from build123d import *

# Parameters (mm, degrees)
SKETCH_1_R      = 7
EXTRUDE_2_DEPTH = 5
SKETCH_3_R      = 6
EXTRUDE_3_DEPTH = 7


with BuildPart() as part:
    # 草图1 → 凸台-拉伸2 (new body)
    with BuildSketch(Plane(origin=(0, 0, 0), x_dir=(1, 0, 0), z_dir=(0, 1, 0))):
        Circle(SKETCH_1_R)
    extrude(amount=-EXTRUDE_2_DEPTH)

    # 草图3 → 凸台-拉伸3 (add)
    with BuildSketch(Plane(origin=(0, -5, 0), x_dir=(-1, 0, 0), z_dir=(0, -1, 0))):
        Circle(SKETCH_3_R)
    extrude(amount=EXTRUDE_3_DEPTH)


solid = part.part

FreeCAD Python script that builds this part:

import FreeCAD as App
import Part
import Sketcher

V = App.Vector
Q = App.Units.Quantity

doc = App.newDocument("Part")
params = doc.addObject("Spreadsheet::Sheet", "Params")
for row, (alias, value) in enumerate([
    ("sketch1_diameter", "14 mm"),
    ("pad1_length", "5 mm"),
    ("sketch2_diameter", "12 mm"),
    ("pad2_length", "7 mm"),
], start=1):
    params.set(f"A{row}", alias)
    params.set(f"B{row}", "=" + value)
    params.setAlias(f"B{row}", alias)

body = doc.addObject("PartDesign::Body", "Body")

# Sketch on XZ plane
sketch1 = body.newObject("Sketcher::SketchObject", "Sketch")
sketch1.AttachmentSupport = (doc.getObject("XZ_Plane"), [""])
sketch1.MapMode = "FlatFace"
sketch1.addGeometry(Part.Circle(V(0, 0, 0), V(0, 0, 1), 7), False)
sketch1.addConstraint(Sketcher.Constraint("Coincident", 0, 3, -1, 1))
sketch1.addConstraint(Sketcher.Constraint("Diameter", 0, Q("14 mm")))
sketch1.setExpression("Constraints[1]", "Params.sketch1_diameter")
pad1 = body.newObject("PartDesign::Pad", "Pad")
pad1.Profile = sketch1
pad1.setExpression("Length", "Params.pad1_length")

# Sketch on XZ plane
sketch2 = body.newObject("Sketcher::SketchObject", "Sketch001")
sketch2.AttachmentSupport = (doc.getObject("XZ_Plane"), [""])
sketch2.MapMode = "FlatFace"
sketch2.AttachmentOffset = App.Placement(V(0, 0, 5), App.Rotation())
sketch2.addGeometry(Part.Circle(V(0, 0, 0), V(0, 0, 1), 6), False)
sketch2.addConstraint(Sketcher.Constraint("Coincident", 0, 3, -1, 1))
sketch2.addConstraint(Sketcher.Constraint("Diameter", 0, Q("12 mm")))
sketch2.setExpression("Constraints[1]", "Params.sketch2_diameter")
pad2 = body.newObject("PartDesign::Pad", "Pad001")
pad2.Profile = sketch2
pad2.setExpression("Length", "Params.pad2_length")

doc.recompute()
